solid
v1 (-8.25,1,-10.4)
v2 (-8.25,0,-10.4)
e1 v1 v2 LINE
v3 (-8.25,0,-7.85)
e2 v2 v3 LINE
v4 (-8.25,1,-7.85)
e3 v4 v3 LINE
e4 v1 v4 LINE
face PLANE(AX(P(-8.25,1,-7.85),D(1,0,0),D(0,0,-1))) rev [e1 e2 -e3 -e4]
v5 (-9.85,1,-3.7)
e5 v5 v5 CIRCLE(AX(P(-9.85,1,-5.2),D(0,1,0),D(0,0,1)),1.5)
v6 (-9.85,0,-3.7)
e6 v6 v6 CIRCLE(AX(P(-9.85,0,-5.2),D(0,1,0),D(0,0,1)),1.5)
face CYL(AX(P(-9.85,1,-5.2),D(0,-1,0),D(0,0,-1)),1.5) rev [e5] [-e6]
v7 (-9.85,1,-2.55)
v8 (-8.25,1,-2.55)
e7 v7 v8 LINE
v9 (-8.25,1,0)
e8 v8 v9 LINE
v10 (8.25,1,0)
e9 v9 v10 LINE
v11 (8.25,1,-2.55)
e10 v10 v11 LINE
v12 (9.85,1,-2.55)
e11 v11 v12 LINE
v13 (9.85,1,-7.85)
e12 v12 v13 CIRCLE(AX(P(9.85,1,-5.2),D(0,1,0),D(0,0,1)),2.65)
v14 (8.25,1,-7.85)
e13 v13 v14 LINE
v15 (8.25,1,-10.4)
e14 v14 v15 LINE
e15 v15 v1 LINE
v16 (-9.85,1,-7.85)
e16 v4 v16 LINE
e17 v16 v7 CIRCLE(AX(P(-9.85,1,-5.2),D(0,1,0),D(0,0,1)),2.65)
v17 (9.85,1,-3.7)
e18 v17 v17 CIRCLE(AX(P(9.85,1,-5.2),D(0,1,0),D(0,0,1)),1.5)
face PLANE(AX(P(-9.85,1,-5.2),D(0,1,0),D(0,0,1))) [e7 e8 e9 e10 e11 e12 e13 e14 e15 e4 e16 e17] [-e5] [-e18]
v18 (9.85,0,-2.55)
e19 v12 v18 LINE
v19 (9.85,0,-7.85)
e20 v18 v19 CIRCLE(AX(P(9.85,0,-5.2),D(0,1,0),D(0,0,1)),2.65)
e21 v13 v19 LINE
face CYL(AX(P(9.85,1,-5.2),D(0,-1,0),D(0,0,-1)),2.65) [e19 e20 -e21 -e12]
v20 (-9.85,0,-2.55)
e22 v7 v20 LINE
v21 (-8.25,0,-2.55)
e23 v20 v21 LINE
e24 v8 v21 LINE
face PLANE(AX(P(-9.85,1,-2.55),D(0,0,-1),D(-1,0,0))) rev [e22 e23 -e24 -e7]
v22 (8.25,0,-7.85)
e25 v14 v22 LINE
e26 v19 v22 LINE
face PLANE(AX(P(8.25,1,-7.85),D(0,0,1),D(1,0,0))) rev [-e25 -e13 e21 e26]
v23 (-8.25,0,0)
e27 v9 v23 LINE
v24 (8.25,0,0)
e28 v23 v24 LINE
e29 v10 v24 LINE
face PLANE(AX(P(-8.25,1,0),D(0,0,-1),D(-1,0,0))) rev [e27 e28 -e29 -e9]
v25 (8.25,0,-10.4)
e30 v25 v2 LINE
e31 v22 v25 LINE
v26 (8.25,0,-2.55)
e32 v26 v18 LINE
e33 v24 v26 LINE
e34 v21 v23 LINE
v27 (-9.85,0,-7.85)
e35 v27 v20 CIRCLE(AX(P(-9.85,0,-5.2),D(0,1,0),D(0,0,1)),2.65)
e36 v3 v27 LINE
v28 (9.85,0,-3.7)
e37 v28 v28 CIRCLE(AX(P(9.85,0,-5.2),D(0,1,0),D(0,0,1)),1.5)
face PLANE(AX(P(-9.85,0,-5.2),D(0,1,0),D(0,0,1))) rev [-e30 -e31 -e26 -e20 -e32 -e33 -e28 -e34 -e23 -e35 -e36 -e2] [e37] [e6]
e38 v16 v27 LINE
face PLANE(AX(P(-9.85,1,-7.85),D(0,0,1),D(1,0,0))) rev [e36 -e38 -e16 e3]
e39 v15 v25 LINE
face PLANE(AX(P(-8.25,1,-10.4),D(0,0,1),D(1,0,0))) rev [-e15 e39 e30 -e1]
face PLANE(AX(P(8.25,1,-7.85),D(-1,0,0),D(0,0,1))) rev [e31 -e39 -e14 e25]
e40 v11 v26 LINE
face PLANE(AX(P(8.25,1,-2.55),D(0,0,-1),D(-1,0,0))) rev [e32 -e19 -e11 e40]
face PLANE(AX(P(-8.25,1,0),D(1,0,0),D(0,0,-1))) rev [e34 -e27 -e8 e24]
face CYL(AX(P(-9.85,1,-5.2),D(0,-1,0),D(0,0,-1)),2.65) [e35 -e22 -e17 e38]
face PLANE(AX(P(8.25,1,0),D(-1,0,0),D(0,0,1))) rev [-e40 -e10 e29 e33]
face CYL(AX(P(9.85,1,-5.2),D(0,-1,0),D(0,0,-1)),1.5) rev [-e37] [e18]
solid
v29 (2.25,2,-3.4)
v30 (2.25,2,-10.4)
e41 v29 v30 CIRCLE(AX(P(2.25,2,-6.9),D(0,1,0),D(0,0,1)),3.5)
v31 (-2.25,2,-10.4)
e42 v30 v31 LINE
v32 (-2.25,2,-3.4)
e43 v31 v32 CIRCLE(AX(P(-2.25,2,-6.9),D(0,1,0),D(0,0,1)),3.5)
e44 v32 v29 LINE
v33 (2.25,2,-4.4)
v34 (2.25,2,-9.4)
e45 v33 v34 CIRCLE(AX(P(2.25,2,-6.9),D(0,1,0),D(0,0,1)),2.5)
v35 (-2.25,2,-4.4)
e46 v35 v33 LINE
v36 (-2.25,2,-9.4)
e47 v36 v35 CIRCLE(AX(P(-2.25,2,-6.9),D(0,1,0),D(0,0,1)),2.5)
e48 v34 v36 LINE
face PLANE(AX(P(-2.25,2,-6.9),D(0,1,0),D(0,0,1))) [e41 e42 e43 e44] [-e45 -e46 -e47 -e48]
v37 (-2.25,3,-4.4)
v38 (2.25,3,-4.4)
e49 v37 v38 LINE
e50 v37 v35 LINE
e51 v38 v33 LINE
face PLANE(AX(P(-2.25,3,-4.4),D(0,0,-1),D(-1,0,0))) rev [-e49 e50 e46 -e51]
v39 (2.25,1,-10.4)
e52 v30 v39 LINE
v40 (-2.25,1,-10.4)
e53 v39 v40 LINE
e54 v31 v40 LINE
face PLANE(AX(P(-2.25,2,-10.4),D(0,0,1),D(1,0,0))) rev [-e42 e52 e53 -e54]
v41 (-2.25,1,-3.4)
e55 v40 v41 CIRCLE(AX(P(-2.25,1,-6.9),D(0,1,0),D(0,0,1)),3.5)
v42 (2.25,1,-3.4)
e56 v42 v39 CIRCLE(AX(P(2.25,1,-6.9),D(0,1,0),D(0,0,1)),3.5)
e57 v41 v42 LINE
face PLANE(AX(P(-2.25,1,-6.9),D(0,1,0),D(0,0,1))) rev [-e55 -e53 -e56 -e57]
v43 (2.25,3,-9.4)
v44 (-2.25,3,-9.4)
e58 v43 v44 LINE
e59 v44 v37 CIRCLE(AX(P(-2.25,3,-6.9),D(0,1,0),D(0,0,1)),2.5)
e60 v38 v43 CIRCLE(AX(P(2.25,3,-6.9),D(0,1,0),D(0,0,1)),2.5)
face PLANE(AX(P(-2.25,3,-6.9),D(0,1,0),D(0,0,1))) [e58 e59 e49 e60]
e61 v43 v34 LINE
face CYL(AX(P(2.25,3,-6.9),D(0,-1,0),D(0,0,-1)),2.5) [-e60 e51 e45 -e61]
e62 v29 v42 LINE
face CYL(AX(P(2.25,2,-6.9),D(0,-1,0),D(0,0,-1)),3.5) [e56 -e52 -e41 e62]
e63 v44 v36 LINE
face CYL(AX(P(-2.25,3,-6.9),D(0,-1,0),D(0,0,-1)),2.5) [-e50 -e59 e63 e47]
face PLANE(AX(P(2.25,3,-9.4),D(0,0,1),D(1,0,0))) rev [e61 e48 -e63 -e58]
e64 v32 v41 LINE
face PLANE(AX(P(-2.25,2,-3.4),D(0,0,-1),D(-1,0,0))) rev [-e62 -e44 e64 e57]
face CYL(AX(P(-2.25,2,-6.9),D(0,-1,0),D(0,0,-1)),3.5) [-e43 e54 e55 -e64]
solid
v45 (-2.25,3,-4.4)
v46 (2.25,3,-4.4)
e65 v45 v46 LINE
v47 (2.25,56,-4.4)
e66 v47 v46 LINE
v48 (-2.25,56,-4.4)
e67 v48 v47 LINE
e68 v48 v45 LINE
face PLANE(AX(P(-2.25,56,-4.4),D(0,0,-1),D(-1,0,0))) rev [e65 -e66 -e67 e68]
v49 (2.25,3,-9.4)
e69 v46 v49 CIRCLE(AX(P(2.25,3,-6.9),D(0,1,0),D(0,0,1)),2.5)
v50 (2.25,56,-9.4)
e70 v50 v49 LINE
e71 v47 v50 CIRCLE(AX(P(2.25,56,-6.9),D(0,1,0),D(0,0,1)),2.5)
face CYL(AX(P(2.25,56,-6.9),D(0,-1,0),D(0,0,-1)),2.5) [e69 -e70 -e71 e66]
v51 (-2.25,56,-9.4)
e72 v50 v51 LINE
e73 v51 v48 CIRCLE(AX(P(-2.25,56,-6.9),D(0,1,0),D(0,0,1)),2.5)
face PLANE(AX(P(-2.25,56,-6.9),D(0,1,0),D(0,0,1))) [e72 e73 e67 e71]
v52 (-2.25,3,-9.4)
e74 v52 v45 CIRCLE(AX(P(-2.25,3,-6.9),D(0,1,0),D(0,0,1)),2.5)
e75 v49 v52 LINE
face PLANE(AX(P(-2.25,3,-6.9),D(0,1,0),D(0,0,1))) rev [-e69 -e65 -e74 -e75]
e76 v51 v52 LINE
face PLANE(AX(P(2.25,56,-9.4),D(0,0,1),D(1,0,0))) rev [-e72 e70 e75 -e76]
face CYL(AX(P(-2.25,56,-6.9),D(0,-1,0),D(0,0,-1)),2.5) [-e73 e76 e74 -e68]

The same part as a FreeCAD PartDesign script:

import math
import FreeCAD as App
import Part
import Sketcher
from FreeCAD import Vector
Q = App.Units.Quantity

doc = App.newDocument("Part")
body = doc.addObject("PartDesign::Body", "Body")

sketch1 = body.newObject("Sketcher::SketchObject", "Sketch")
sketch1.AttachmentSupport = (doc.getObject("XZ_Plane"), [""])
sketch1.MapMode = "FlatFace"
sketch1.addGeometry(Part.LineSegment(Vector(-8.2, 0, 0), Vector(8.2, 0, 0)), False)
sketch1.addGeometry(Part.LineSegment(Vector(8.2, 0, 0), Vector(8.2, -2.5, 0)), False)
sketch1.addGeometry(Part.LineSegment(Vector(8.2, -2.5, 0), Vector(9.8, -2.5, 0)), False)
sketch1.addGeometry(Part.ArcOfCircle(Part.Circle(Vector(9.8, -5.2, 0), Vector(0, 0, 1), 2.6), math.radians(-90), math.radians(90)), False)
sketch1.addGeometry(Part.LineSegment(Vector(9.8, -7.8, 0), Vector(8.2, -7.8, 0)), False)
sketch1.addGeometry(Part.LineSegment(Vector(8.2, -7.8, 0), Vector(8.2, -10.4, 0)), False)
sketch1.addGeometry(Part.LineSegment(Vector(8.2, -10.4, 0), Vector(-8.2, -10.4, 0)), False)
sketch1.addGeometry(Part.LineSegment(Vector(-8.2, -10.4, 0), Vector(-8.2, -7.8, 0)), False)
sketch1.addGeometry(Part.LineSegment(Vector(-8.2, -7.8, 0), Vector(-9.8, -7.8, 0)), False)
sketch1.addGeometry(Part.ArcOfCircle(Part.Circle(Vector(-9.8, -5.2, 0), Vector(0, 0, 1), 2.6), math.radians(90), math.radians(270)), False)
sketch1.addGeometry(Part.LineSegment(Vector(-9.8, -2.5, 0), Vector(-8.2, -2.5, 0)), False)
sketch1.addGeometry(Part.LineSegment(Vector(-8.2, -2.5, 0), Vector(-8.2, 0, 0)), False)
sketch1.addGeometry(Part.Circle(Vector(-9.8, -5.2, 0), Vector(0, 0, 1), 1.5), False)
sketch1.addGeometry(Part.Circle(Vector(9.8, -5.2, 0), Vector(0, 0, 1), 1.5), False)
sketch1.addConstraint(Sketcher.Constraint("Coincident", 0, 2, 1, 1))
sketch1.addConstraint(Sketcher.Constraint("Coincident", 1, 2, 2, 1))
sketch1.addConstraint(Sketcher.Constraint("Tangent", 2, 2, 3, 2))
sketch1.addConstraint(Sketcher.Constraint("Tangent", 3, 1, 4, 1))
sketch1.addConstraint(Sketcher.Constraint("Coincident", 4, 2, 5, 1))
sketch1.addConstraint(Sketcher.Constraint("Coincident", 5, 2, 6, 1))
sketch1.addConstraint(Sketcher.Constraint("Coincident", 6, 2, 7, 1))
sketch1.addConstraint(Sketcher.Constraint("Coincident", 7, 2, 8, 1))
sketch1.addConstraint(Sketcher.Constraint("Tangent", 8, 2, 9, 2))
sketch1.addConstraint(Sketcher.Constraint("Tangent", 9, 1, 10, 1))
sketch1.addConstraint(Sketcher.Constraint("Coincident", 10, 2, 11, 1))
sketch1.addConstraint(Sketcher.Constraint("Coincident", 11, 2, 0, 1))
sketch1.addConstraint(Sketcher.Constraint("Horizontal", 0))
sketch1.addConstraint(Sketcher.Constraint("Vertical", 1))
sketch1.addConstraint(Sketcher.Constraint("Horizontal", 2))
sketch1.addConstraint(Sketcher.Constraint("Horizontal", 4))
sketch1.addConstraint(Sketcher.Constraint("Vertical", 5))
sketch1.addConstraint(Sketcher.Constraint("Horizontal", 6))
sketch1.addConstraint(Sketcher.Constraint("Vertical", 7))
sketch1.addConstraint(Sketcher.Constraint("Horizontal", 8))
sketch1.addConstraint(Sketcher.Constraint("Horizontal", 10))
sketch1.addConstraint(Sketcher.Constraint("Vertical", 11))
sketch1.addConstraint(Sketcher.Constraint("Coincident", 12, 3, 9, 3))
sketch1.addConstraint(Sketcher.Constraint("Coincident", 13, 3, 3, 3))
sketch1.addConstraint(Sketcher.Constraint("Equal", 3, 9))
sketch1.addConstraint(Sketcher.Constraint("Equal", 12, 13))
sketch1.addConstraint(Sketcher.Constraint("Symmetric", 0, 2, 11, 2, -1, 1))
sketch1.addConstraint(Sketcher.Constraint("Symmetric", 3, 3, 9, 3, -2))
sketch1.addConstraint(Sketcher.Constraint("Vertical", 1, 2, 4, 2))
sketch1.addConstraint(Sketcher.Constraint("Vertical", 7, 2, 10, 2))
sketch1.addConstraint(Sketcher.Constraint("Equal", 1, 5))
sketch1.addConstraint(Sketcher.Constraint("Diameter", 12, Q("3 mm")))
sketch1.addConstraint(Sketcher.Constraint("Radius", 3, Q("2.65 mm")))
sketch1.addConstraint(Sketcher.Constraint("DistanceX", 0, 1, 0, 2, Q("16.5 mm")))
sketch1.addConstraint(Sketcher.Constraint("DistanceX", 2, 1, 2, 2, Q("1.6 mm")))
sketch1.addConstraint(Sketcher.Constraint("DistanceY", 1, 2, 1, 1, Q("2.55 mm")))
pad1 = body.newObject("PartDesign::Pad", "Pad")
pad1.Profile = sketch1
pad1.Length = 1
pad1.Reversed = True
body2 = doc.addObject("PartDesign::Body", "Body001")

sketch2 = body2.newObject("Sketcher::SketchObject", "Sketch001")
sketch2.AttachmentSupport = (doc.getObject("XZ_Plane001"), [""])
sketch2.MapMode = "FlatFace"
sketch2.AttachmentOffset = App.Placement(Vector(0, 0, -1), App.Rotation())
sketch2.addGeometry(Part.LineSegment(Vector(2.2, -10.4, 0), Vector(-2.2, -10.4, 0)), False)
sketch2.addGeometry(Part.ArcOfCircle(Part.Circle(Vector(-2.2, -6.9, 0), Vector(0, 0, 1), 3.5), math.radians(90), math.radians(270)), False)
sketch2.addGeometry(Part.LineSegment(Vector(-2.2, -3.4, 0), Vector(2.2, -3.4, 0)), False)
sketch2.addGeometry(Part.ArcOfCircle(Part.Circle(Vector(2.2, -6.9, 0), Vector(0, 0, 1), 3.5), math.radians(-90), math.radians(90)), False)
sketch2.addConstraint(Sketcher.Constraint("Tangent", 0, 2, 1, 2))
sketch2.addConstraint(Sketcher.Constraint("Tangent", 1, 1, 2, 1))
sketch2.addConstraint(Sketcher.Constraint("Tangent", 2, 2, 3, 2))
sketch2.addConstraint(Sketcher.Constraint("Tangent", 3, 1, 0, 1))
sketch2.addConstraint(Sketcher.Constraint("Horizontal", 0))
sketch2.addConstraint(Sketcher.Constraint("Horizontal", 2))
sketch2.addConstraint(Sketcher.Constraint("Radius", 1, Q("3.5 mm")))
sketch2.addConstraint(Sketcher.Constraint("DistanceX", 0, 2, 0, 1, Q("4.5 mm")))
sketch2.addConstraint(Sketcher.Constraint("DistanceY", 1, 3, -1, 1, Q("6.9 mm")))
sketch2.addConstraint(Sketcher.Constraint("DistanceX", 1, 3, -1, 1, Q("2.25 mm")))
pad2 = body2.newObject("PartDesign::Pad", "Pad001")
pad2.Profile = sketch2
pad2.Length = 1
pad2.Reversed = True

sketch3 = body2.newObject("Sketcher::SketchObject", "Sketch002")
sketch3.AttachmentSupport = (doc.getObject("XZ_Plane001"), [""])
sketch3.MapMode = "FlatFace"
sketch3.AttachmentOffset = App.Placement(Vector(0, 0, -2), App.Rotation())
sketch3.addGeometry(Part.LineSegment(Vector(-2.2, -4.4, 0), Vector(2.2, -4.4, 0)), False)
sketch3.addGeometry(Part.ArcOfCircle(Part.Circle(Vector(2.2, -6.9, 0), Vector(0, 0, 1), 2.5), math.radians(-90), math.radians(90)), False)
sketch3.addGeometry(Part.LineSegment(Vector(2.2, -9.4, 0), Vector(-2.2, -9.4, 0)), False)
sketch3.addGeometry(Part.ArcOfCircle(Part.Circle(Vector(-2.2, -6.9, 0), Vector(0, 0, 1), 2.5), math.radians(90), math.radians(270)), False)
sketch3.addConstraint(Sketcher.Constraint("Tangent", 0, 2, 1, 2))
sketch3.addConstraint(Sketcher.Constraint("Tangent", 1, 1, 2, 1))
sketch3.addConstraint(Sketcher.Constraint("Tangent", 2, 2, 3, 2))
sketch3.addConstraint(Sketcher.Constraint("Tangent", 3, 1, 0, 1))
sketch3.addConstraint(Sketcher.Constraint("Horizontal", 0))
sketch3.addConstraint(Sketcher.Constraint("Horizontal", 2))
sketch3.addConstraint(Sketcher.Constraint("Radius", 1, Q("2.5 mm")))
sketch3.addConstraint(Sketcher.Constraint("DistanceX", 0, 1, 0, 2, Q("4.5 mm")))
sketch3.addConstraint(Sketcher.Constraint("DistanceY", 1, 3, -1, 1, Q("6.9 mm")))
sketch3.addConstraint(Sketcher.Constraint("DistanceX", -1, 1, 1, 3, Q("2.25 mm")))
pad3 = body2.newObject("PartDesign::Pad", "Pad002")
pad3.Profile = sketch3
pad3.Length = 1
pad3.Reversed = True
body3 = doc.addObject("PartDesign::Body", "Body002")

sketch4 = body3.newObject("Sketcher::SketchObject", "Sketch003")
sketch4.AttachmentSupport = (doc.getObject("XZ_Plane002"), [""])
sketch4.MapMode = "FlatFace"
sketch4.AttachmentOffset = App.Placement(Vector(0, 0, -3), App.Rotation())
sketch4.addGeometry(Part.LineSegment(Vector(-2.2, -4.4, 0), Vector(2.2, -4.4, 0)), False)
sketch4.addGeometry(Part.ArcOfCircle(Part.Circle(Vector(2.2, -6.9, 0), Vector(0, 0, 1), 2.5), math.radians(-90), math.radians(90)), False)
sketch4.addGeometry(Part.LineSegment(Vector(2.2, -9.4, 0), Vector(-2.2, -9.4, 0)), False)
sketch4.addGeometry(Part.ArcOfCircle(Part.Circle(Vector(-2.2, -6.9, 0), Vector(0, 0, 1), 2.5), math.radians(90), math.radians(270)), False)
sketch4.addConstraint(Sketcher.Constraint("Tangent", 0, 2, 1, 2))
sketch4.addConstraint(Sketcher.Constraint("Tangent", 1, 1, 2, 1))
sketch4.addConstraint(Sketcher.Constraint("Tangent", 2, 2, 3, 2))
sketch4.addConstraint(Sketcher.Constraint("Tangent", 3, 1, 0, 1))
sketch4.addConstraint(Sketcher.Constraint("Horizontal", 0))
sketch4.addConstraint(Sketcher.Constraint("Horizontal", 2))
sketch4.addConstraint(Sketcher.Constraint("Radius", 1, Q("2.5 mm")))
sketch4.addConstraint(Sketcher.Constraint("DistanceX", 0, 1, 0, 2, Q("4.5 mm")))
sketch4.addConstraint(Sketcher.Constraint("DistanceY", 1, 3, -1, 1, Q("6.9 mm")))
sketch4.addConstraint(Sketcher.Constraint("DistanceX", -1, 1, 1, 3, Q("2.25 mm")))
pad4 = body3.newObject("PartDesign::Pad", "Pad003")
pad4.Profile = sketch4
pad4.Length = 53
pad4.Reversed = True

doc.recompute()
